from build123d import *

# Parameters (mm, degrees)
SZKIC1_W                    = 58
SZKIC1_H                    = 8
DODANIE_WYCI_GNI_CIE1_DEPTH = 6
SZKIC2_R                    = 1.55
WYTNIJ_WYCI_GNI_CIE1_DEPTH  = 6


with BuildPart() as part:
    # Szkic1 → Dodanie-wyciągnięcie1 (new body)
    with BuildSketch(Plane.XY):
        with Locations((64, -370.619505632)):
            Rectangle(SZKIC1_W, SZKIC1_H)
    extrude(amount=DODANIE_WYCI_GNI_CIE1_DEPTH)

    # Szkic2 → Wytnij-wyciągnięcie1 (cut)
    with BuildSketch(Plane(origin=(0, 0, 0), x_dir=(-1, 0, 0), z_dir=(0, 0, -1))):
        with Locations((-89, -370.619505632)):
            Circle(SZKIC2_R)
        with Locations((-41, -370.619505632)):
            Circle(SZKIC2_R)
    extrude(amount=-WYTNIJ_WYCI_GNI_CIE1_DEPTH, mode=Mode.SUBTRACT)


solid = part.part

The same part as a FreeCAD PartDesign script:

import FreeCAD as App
import Part
import Sketcher
from FreeCAD import Vector


def add_polygon(sketch, points):
    """Adds a closed chain of lines whose ends are joined by coincident constraints."""
    first, n = sketch.GeometryCount, len(points)
    for a, b in zip(points, points[1:] + points[:1]):
        sketch.addGeometry(Part.LineSegment(App.Vector(*a, 0), App.Vector(*b, 0)), False)
    for i in range(n):
        sketch.addConstraint(Sketcher.Constraint("Coincident", first + i, 2, first + (i + 1) % n, 1))

doc = App.newDocument("Part")
params = doc.addObject("Spreadsheet::Sheet", "Params")
for row, (alias, value) in enumerate([
    ("sketch1_width", "58 mm"),
    ("sketch1_height", "8 mm"),
    ("pad1_length", "6 mm"),
    ("sketch2_diameter", "3.1 mm"),
    ("pocket1_length", "6 mm"),
], start=1):
    params.set(f"A{row}", alias)
    params.set(f"B{row}", "=" + value)
    params.setAlias(f"B{row}", alias)

body = doc.addObject("PartDesign::Body", "Body")

# Sketch on XY plane
sketch1 = body.newObject("Sketcher::SketchObject", "Sketch")
sketch1.AttachmentSupport = (doc.getObject("XY_Plane"), [""])
sketch1.MapMode = "FlatFace"
add_polygon(sketch1, [(35, -366.619506), (35, -374.619506), (93, -374.619506), (93, -366.619506)])  # lines 0-3
sketch1.addConstraint([
    Sketcher.Constraint("Vertical", 0),
    Sketcher.Constraint("Horizontal", 1),
    Sketcher.Constraint("Vertical", 2),
    Sketcher.Constraint("Horizontal", 3),
    Sketcher.Constraint("DistanceX", 1, 1, 1, 2, 58.0),
    Sketcher.Constraint("DistanceY", 0, 2, 0, 1, 8.0),
    Sketcher.Constraint("DistanceX", -1, 1, 0, 2, 35.0),
    Sketcher.Constraint("DistanceY", 0, 2, -1, 1, 374.619506),
])
sketch1.setExpression("Constraints[8]", "Params.sketch1_width")
sketch1.setExpression("Constraints[9]", "Params.sketch1_height")
pad1 = body.newObject("PartDesign::Pad", "Pad")
pad1.Profile = sketch1
pad1.setExpression("Length", "Params.pad1_length")

# Sketch on XY plane
sketch2 = body.newObject("Sketcher::SketchObject", "Sketch001")
sketch2.AttachmentSupport = (doc.getObject("XY_Plane"), [""])
sketch2.MapMode = "FlatFace"
sketch2.addGeometry([
    Part.Circle(Vector(89, -370.619506, 0), Vector(0, 0, 1), 1.55),
    Part.Circle(Vector(41, -370.619506, 0), Vector(0, 0, 1), 1.55),
], False)
sketch2.addConstraint([
    Sketcher.Constraint("Equal", 0, 1),
    Sketcher.Constraint("Horizontal", 0, 3, 1, 3),
    Sketcher.Constraint("Diameter", 0, 3.1),
    Sketcher.Constraint("DistanceX", -1, 1, 0, 3, 89.0),
    Sketcher.Constraint("DistanceX", -1, 1, 1, 3, 41.0),
    Sketcher.Constraint("DistanceY", 0, 3, -1, 1, 370.619506),
])
sketch2.setExpression("Constraints[2]", "Params.sketch2_diameter")
pocket1 = body.newObject("PartDesign::Pocket", "Pocket")
pocket1.Profile = sketch2
pocket1.setExpression("Length", "Params.pocket1_length")
pocket1.Reversed = True

doc.recompute()
